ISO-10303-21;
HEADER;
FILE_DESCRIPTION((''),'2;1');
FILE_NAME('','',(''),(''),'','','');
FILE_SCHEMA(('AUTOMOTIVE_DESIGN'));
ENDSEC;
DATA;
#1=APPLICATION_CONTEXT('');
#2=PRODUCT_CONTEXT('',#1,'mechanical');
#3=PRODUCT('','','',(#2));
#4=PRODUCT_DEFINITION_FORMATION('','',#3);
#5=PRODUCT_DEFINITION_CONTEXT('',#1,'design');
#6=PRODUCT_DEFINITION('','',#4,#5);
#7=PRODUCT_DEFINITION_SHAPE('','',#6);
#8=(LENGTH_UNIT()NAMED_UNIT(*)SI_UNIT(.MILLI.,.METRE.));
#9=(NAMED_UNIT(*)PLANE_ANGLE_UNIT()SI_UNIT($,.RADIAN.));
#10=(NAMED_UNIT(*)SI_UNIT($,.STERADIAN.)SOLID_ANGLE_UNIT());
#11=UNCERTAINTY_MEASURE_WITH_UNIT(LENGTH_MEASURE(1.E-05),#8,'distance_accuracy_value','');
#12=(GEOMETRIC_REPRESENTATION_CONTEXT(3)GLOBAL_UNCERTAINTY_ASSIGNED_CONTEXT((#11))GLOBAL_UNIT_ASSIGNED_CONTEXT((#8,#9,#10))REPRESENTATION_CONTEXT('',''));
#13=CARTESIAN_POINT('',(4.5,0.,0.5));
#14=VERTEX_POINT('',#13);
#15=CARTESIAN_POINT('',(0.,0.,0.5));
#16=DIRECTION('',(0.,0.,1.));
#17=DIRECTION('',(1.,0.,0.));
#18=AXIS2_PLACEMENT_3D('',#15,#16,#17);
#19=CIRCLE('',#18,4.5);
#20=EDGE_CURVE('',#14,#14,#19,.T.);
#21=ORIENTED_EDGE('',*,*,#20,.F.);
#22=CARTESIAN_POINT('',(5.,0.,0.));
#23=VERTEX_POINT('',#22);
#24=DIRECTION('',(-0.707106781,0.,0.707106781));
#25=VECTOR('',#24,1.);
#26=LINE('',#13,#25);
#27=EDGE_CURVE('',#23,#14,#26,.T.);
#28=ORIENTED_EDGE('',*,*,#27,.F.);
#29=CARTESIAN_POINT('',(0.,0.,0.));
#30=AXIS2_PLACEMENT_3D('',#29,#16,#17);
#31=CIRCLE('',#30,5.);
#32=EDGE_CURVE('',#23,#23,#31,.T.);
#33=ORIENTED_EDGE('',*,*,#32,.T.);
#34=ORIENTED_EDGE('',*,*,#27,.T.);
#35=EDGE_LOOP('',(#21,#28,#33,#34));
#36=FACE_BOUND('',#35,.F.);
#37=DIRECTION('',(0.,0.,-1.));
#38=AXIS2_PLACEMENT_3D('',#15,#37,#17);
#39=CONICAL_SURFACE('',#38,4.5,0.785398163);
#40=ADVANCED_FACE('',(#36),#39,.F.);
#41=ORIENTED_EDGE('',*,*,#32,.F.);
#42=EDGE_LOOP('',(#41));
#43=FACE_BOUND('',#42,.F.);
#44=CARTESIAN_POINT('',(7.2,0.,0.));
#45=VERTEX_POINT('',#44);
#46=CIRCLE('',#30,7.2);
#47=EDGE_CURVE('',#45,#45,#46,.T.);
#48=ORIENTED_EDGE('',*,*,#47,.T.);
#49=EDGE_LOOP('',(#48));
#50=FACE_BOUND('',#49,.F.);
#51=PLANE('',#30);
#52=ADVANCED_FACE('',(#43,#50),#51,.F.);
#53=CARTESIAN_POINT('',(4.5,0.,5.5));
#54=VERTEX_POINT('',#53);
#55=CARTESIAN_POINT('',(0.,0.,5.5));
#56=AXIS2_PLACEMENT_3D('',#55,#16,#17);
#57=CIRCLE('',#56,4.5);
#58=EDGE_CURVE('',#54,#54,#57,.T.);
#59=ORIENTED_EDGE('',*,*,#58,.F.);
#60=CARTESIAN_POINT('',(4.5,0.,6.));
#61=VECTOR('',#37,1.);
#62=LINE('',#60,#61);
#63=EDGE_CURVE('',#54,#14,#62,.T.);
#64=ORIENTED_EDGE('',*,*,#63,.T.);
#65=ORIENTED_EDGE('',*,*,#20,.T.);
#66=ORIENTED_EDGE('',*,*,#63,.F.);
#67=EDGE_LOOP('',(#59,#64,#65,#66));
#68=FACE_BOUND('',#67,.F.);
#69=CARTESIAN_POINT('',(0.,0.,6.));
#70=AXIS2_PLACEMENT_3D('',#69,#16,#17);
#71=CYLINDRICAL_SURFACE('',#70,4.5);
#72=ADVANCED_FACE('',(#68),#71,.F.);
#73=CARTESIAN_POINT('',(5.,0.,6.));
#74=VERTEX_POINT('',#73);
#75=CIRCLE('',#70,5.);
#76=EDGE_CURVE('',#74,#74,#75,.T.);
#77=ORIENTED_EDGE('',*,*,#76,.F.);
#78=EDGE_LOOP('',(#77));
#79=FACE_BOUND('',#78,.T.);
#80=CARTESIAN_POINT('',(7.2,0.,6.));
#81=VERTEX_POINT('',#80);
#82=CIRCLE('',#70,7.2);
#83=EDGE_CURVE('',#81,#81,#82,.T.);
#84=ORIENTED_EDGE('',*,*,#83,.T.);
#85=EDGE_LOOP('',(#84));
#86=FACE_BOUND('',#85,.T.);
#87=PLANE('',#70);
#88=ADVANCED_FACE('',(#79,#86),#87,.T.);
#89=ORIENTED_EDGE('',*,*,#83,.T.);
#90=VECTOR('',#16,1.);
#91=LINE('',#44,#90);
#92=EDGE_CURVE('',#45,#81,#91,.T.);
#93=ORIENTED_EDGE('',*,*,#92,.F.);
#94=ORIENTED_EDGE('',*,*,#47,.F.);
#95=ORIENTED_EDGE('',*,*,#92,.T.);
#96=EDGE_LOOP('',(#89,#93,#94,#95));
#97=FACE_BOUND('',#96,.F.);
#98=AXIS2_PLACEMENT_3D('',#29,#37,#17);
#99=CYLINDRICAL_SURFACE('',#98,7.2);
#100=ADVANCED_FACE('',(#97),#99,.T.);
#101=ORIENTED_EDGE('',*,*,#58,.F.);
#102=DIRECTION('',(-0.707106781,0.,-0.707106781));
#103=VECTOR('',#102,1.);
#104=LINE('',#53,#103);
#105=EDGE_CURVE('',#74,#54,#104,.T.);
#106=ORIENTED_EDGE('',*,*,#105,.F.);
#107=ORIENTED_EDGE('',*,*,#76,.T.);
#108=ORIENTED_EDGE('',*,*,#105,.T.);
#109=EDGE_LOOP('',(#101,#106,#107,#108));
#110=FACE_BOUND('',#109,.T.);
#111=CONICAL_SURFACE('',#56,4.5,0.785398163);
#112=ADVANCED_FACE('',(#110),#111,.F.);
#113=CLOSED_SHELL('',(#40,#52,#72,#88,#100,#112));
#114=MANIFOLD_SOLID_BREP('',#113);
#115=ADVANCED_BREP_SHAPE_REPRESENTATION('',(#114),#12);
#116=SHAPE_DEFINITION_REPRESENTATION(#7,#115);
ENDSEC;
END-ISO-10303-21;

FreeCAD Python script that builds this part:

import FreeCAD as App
import Part
import Sketcher


def edges_at(feature, points):
    """Names of the edges that pass closest to the given points."""
    edges = feature.Shape.Edges
    near = lambda p: min(range(len(edges)), key=lambda i: edges[i].distToShape(Part.Vertex(*p))[0])
    return sorted({f"Edge{near(p) + 1}" for p in points})

doc = App.newDocument("Part")
body = doc.addObject("PartDesign::Body", "Body")

sketch1 = body.newObject("Sketcher::SketchObject", "Sketch")
sketch1.AttachmentSupport = (doc.getObject("XY_Plane"), [""])
sketch1.MapMode = "FlatFace"
sketch1.addGeometry(Part.Circle(App.Vector(0, 0, 0), App.Vector(0, 0, 1), 7), False)
sketch1.addConstraint([
    Sketcher.Constraint("Coincident", 0, 3, -1, 1),
    Sketcher.Constraint("Diameter", 0, 14.4),
])
pad1 = body.newObject("PartDesign::Pad", "Pad")
pad1.Profile = sketch1
pad1.Length = 6

sketch2 = body.newObject("Sketcher::SketchObject", "Sketch001")
sketch2.AttachmentSupport = (doc.getObject("XY_Plane"), [""])
sketch2.MapMode = "FlatFace"
sketch2.AttachmentOffset = App.Placement(App.Vector(0, 0, 6), App.Rotation())
sketch2.addGeometry(Part.Circle(App.Vector(0, 0, 0), App.Vector(0, 0, 1), 4.5), False)
sketch2.addConstraint([
    Sketcher.Constraint("Coincident", 0, 3, -1, 1),
    Sketcher.Constraint("Diameter", 0, 9.0),
])
pocket1 = body.newObject("PartDesign::Pocket", "Pocket")
pocket1.Profile = sketch2
pocket1.Length = 25
doc.recompute()

chamfer = body.newObject("PartDesign::Chamfer", "Chamfer")
chamfer.Base = (pocket1, edges_at(pocket1, [(-4.5, 0, 6), (-4.5, 0, 0)]))
chamfer.ChamferType = "Two distances"
chamfer.Size = 0.5
chamfer.Size2 = 0.5

doc.recompute()
